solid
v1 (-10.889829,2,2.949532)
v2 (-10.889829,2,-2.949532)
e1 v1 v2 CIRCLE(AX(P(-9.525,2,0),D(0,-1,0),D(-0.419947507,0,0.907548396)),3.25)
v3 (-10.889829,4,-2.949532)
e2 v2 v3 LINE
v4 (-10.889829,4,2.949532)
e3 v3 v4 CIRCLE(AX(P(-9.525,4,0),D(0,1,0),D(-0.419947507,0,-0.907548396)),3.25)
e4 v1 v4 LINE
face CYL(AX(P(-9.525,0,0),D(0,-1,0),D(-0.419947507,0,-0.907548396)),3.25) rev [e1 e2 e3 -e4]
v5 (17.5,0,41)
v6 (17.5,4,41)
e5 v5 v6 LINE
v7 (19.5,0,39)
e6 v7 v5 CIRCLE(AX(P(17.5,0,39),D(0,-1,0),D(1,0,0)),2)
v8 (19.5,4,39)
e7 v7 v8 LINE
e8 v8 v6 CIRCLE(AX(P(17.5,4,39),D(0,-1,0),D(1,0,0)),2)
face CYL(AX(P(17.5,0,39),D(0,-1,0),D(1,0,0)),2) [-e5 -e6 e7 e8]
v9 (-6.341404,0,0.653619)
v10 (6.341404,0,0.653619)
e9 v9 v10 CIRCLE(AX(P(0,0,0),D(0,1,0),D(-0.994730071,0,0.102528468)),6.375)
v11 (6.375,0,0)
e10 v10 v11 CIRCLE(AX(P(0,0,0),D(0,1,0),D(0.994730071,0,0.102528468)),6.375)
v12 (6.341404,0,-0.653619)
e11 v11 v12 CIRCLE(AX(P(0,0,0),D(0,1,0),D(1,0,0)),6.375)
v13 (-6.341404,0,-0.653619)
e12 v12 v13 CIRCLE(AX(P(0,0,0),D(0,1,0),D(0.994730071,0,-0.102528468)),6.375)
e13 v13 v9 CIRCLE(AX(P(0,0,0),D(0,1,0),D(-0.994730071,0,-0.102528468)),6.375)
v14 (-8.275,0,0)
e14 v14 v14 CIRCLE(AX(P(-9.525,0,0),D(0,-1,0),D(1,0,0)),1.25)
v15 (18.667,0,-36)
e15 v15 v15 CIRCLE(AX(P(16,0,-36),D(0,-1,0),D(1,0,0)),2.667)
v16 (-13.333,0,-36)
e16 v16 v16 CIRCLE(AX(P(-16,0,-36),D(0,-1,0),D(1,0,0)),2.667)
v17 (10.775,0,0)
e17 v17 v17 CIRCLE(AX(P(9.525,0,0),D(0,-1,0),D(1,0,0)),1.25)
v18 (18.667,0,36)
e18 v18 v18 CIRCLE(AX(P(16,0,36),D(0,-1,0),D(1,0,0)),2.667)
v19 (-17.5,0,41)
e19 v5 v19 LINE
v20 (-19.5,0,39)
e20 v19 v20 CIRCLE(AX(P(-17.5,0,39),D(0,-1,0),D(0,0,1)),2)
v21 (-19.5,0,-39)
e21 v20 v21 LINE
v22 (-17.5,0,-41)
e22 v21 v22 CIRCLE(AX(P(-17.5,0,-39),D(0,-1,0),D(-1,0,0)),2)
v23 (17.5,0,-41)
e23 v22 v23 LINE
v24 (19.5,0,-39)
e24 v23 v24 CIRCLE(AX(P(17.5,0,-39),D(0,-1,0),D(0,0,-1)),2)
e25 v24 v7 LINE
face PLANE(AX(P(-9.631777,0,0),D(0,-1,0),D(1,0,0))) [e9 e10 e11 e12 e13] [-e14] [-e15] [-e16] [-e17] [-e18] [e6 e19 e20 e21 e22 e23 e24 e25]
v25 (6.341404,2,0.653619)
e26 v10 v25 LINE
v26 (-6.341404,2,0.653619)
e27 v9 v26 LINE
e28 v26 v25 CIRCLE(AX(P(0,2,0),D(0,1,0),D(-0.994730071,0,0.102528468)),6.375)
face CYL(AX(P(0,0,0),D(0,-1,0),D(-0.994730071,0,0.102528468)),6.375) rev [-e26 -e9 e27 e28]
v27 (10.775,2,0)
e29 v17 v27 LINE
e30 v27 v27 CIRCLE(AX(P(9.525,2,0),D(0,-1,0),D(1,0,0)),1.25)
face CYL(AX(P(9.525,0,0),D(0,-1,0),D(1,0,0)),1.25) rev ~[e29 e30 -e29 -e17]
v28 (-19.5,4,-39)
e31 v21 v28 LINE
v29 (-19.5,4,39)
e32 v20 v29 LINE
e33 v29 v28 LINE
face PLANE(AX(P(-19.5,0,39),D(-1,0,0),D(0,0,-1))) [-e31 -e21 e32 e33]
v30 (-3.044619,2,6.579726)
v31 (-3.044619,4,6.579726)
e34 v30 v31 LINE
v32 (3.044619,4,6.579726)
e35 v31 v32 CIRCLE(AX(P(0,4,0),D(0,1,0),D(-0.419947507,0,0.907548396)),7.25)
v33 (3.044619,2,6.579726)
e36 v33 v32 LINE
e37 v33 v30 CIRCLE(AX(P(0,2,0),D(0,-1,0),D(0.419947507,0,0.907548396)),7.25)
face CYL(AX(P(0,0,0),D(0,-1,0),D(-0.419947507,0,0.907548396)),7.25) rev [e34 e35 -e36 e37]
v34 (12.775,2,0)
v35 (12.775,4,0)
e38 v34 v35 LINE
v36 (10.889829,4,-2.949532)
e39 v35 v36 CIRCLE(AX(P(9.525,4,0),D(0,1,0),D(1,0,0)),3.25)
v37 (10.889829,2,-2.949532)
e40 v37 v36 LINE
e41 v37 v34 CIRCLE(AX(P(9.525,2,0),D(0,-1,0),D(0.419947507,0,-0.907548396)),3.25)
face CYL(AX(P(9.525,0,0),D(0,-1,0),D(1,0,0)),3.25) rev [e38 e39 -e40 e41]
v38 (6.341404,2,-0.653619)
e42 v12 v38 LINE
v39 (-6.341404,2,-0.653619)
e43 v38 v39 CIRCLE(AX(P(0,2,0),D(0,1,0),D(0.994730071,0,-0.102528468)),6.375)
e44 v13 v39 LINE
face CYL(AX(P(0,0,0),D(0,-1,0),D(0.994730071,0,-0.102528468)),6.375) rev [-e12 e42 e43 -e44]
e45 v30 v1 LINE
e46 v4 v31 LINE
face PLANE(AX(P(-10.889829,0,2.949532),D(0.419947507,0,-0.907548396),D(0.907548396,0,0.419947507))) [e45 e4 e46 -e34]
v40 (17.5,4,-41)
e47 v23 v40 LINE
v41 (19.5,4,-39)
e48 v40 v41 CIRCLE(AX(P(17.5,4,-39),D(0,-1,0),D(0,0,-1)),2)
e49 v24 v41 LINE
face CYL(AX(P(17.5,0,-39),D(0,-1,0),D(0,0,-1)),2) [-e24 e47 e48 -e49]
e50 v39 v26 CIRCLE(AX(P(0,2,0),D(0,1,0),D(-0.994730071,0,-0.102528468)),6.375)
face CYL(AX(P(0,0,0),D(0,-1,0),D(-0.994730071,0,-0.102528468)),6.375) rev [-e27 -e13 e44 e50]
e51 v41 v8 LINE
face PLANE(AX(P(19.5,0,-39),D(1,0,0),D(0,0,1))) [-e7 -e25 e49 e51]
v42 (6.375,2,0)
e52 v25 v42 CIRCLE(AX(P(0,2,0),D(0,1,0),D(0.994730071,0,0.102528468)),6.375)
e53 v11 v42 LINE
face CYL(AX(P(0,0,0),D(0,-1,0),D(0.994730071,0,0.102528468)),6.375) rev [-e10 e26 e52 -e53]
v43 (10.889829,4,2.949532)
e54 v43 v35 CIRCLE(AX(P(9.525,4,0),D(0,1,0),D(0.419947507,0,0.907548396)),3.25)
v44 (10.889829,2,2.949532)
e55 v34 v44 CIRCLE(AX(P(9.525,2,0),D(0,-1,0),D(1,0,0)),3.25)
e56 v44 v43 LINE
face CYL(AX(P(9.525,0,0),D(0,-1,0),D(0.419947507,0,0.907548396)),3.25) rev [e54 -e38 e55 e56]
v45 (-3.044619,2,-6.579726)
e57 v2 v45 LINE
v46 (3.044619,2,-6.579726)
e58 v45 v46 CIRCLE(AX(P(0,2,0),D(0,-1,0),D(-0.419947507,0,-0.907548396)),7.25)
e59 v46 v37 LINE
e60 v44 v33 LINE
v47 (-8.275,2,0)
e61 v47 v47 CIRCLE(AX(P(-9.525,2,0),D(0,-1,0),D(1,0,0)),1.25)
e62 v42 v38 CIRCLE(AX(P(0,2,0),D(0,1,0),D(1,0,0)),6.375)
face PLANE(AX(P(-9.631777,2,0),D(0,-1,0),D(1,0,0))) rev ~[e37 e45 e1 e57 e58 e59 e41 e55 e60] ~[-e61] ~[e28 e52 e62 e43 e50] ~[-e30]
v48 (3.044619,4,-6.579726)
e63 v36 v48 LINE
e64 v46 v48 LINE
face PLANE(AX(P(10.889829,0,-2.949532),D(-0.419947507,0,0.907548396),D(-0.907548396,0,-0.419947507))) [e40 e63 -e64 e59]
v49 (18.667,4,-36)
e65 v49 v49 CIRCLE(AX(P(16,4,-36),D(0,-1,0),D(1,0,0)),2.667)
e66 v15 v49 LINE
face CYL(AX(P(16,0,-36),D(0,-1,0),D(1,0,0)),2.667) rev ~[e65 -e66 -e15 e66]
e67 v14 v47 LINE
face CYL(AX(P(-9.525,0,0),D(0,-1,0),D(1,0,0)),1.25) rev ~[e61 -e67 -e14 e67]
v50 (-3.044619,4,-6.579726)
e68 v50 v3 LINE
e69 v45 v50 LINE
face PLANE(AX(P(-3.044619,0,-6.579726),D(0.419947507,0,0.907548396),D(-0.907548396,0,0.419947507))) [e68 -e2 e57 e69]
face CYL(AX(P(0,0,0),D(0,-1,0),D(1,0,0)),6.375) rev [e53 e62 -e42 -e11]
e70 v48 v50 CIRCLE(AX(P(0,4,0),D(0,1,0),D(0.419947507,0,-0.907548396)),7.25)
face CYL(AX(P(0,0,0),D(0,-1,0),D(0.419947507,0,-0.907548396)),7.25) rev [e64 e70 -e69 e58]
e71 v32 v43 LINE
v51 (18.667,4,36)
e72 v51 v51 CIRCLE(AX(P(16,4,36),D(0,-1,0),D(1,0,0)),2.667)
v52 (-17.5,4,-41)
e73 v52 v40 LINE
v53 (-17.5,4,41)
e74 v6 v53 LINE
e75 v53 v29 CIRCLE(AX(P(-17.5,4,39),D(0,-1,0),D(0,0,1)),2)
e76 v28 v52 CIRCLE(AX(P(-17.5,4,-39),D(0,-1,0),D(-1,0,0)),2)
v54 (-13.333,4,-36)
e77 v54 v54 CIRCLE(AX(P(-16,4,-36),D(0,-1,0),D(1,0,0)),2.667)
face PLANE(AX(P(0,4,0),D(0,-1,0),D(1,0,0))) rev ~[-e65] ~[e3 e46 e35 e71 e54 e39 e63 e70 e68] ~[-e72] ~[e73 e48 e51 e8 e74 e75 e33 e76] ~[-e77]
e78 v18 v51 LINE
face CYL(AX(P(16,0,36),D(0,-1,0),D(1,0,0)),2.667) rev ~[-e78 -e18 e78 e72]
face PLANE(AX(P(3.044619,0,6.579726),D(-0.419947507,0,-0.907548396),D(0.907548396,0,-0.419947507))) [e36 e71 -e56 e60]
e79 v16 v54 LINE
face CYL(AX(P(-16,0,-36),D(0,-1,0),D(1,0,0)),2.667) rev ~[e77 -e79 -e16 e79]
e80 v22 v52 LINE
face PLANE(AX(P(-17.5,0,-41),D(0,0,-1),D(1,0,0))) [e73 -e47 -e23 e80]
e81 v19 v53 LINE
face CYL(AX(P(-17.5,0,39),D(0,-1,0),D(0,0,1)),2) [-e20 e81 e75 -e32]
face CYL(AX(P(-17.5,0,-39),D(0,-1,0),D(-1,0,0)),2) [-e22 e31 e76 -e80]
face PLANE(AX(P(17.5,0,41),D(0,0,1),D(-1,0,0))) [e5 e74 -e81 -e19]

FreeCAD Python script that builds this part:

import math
import FreeCAD as App
import Part
import Sketcher
from FreeCAD import Vector
Q = App.Units.Quantity

doc = App.newDocument("Part")
body = doc.addObject("PartDesign::Body", "Body")

# Sketch on XZ plane
sketch1 = body.newObject("Sketcher::SketchObject", "Sketch")
sketch1.AttachmentSupport = (doc.getObject("XZ_Plane"), [""])
sketch1.MapMode = "FlatFace"
sketch1.addGeometry([
    Part.ArcOfCircle(Part.Circle(Vector(17.5, 39, 0), Vector(0, 0, 1), 2), math.radians(0), math.radians(90)),  # 0
    Part.LineSegment(Vector(17.5, 41, 0), Vector(-17.5, 41, 0)),  # 1
    Part.ArcOfCircle(Part.Circle(Vector(-17.5, 39, 0), Vector(0, 0, 1), 2), math.radians(90), math.radians(180)),  # 2
    Part.LineSegment(Vector(-19.5, 39, 0), Vector(-19.5, -39, 0)),  # 3
    Part.ArcOfCircle(Part.Circle(Vector(-17.5, -39, 0), Vector(0, 0, 1), 2), math.radians(180), math.radians(270)),  # 4
    Part.LineSegment(Vector(-17.5, -41, 0), Vector(17.5, -41, 0)),  # 5
    Part.ArcOfCircle(Part.Circle(Vector(17.5, -39, 0), Vector(0, 0, 1), 2), math.radians(-90), math.radians(0)),  # 6
    Part.LineSegment(Vector(19.5, -39, 0), Vector(19.5, 39, 0)),  # 7
    Part.Circle(Vector(-16, -36, 0), Vector(0, 0, 1), 2.7),  # 8
    Part.Circle(Vector(16, -36, 0), Vector(0, 0, 1), 2.7),  # 9
    Part.LineSegment(Vector(-10.9, 2.9, 0), Vector(-3, 6.6, 0)),  # 10
    Part.ArcOfCircle(Part.Circle(Vector(0, 0, 0), Vector(0, 0, 1), 7.2), math.radians(65), math.radians(115)),  # 11
    Part.LineSegment(Vector(3, 6.6, 0), Vector(10.9, 2.9, 0)),  # 12
    Part.ArcOfCircle(Part.Circle(Vector(9.5, 0, 0), Vector(0, 0, 1), 3.2), math.radians(0), math.radians(65)),  # 13
    Part.ArcOfCircle(Part.Circle(Vector(9.5, 0, 0), Vector(0, 0, 1), 3.2), math.radians(-65), math.radians(0)),  # 14
    Part.LineSegment(Vector(10.9, -2.9, 0), Vector(3, -6.6, 0)),  # 15
    Part.ArcOfCircle(Part.Circle(Vector(0, 0, 0), Vector(0, 0, 1), 7.2), math.radians(-115), math.radians(-65)),  # 16
    Part.LineSegment(Vector(-3, -6.6, 0), Vector(-10.9, -2.9, 0)),  # 17
    Part.ArcOfCircle(Part.Circle(Vector(-9.5, 0, 0), Vector(0, 0, 1), 3.2), math.radians(115), math.radians(245)),  # 18
    Part.Circle(Vector(16, 36, 0), Vector(0, 0, 1), 2.7),  # 19
], False)
sketch1.addConstraint([
    Sketcher.Constraint("Tangent", 0, 2, 1, 1),
    Sketcher.Constraint("Tangent", 1, 2, 2, 1),
    Sketcher.Constraint("Tangent", 2, 2, 3, 1),
    Sketcher.Constraint("Tangent", 3, 2, 4, 1),
    Sketcher.Constraint("Tangent", 4, 2, 5, 1),
    Sketcher.Constraint("Tangent", 5, 2, 6, 1),
    Sketcher.Constraint("Tangent", 6, 2, 7, 1),
    Sketcher.Constraint("Tangent", 7, 2, 0, 1),
    Sketcher.Constraint("Tangent", 10, 2, 11, 2),
    Sketcher.Constraint("Tangent", 11, 1, 12, 1),
    Sketcher.Constraint("Tangent", 12, 2, 13, 2),
    Sketcher.Constraint("Tangent", 13, 1, 14, 2),
    Sketcher.Constraint("Tangent", 14, 1, 15, 1),
    Sketcher.Constraint("Tangent", 15, 2, 16, 2),
    Sketcher.Constraint("Tangent", 16, 1, 17, 1),
    Sketcher.Constraint("Tangent", 17, 2, 18, 2),
    Sketcher.Constraint("Tangent", 18, 1, 10, 1),
    Sketcher.Constraint("Horizontal", 1),
    Sketcher.Constraint("Vertical", 3),
    Sketcher.Constraint("Horizontal", 5),
    Sketcher.Constraint("Vertical", 7),
    Sketcher.Constraint("Coincident", 11, 3, -1, 1),
    Sketcher.Constraint("Coincident", 16, 3, -1, 1),
    Sketcher.Constraint("Equal", 0, 2),
    Sketcher.Constraint("Equal", 2, 4),
    Sketcher.Constraint("Equal", 4, 6),
    Sketcher.Constraint("Equal", 8, 9),
    Sketcher.Constraint("Equal", 13, 14),
    Sketcher.Constraint("Equal", 11, 16),
    Sketcher.Constraint("Equal", 14, 18),
    Sketcher.Constraint("Equal", 9, 19),
    Sketcher.Constraint("Symmetric", 0, 3, 4, 3, -1, 1),
    Sketcher.Constraint("Symmetric", 13, 3, 18, 3, -1, 1),
    Sketcher.Constraint("Symmetric", 8, 3, 19, 3, -1, 1),
    Sketcher.Constraint("Symmetric", 8, 3, 9, 3, -2),
    Sketcher.Constraint("PointOnObject", 13, 3, -1),
    Sketcher.Constraint("PointOnObject", 13, 1, -1),
    Sketcher.Constraint("Radius", 0, Q("2 mm")),
    Sketcher.Constraint("DistanceX", 1, 2, 1, 1, Q("35 mm")),
    Sketcher.Constraint("DistanceY", 3, 2, 3, 1, Q("78 mm")),
    Sketcher.Constraint("Radius", 11, Q("7.25 mm")),
    Sketcher.Constraint("Radius", 13, Q("3.25 mm")),
    Sketcher.Constraint("Diameter", 8, Q("5.334 mm")),
    Sketcher.Constraint("DistanceX", 8, 3, -1, 1, Q("16 mm")),
    Sketcher.Constraint("DistanceY", 8, 3, -1, 1, Q("36 mm")),
    Sketcher.Constraint("DistanceX", 18, 3, 13, 3, Q("19.05 mm")),
])
pad1 = body.newObject("PartDesign::Pad", "Pad")
pad1.Profile = sketch1
pad1.Length = 4
pad1.Reversed = True

# Sketch on XZ plane
sketch2 = body.newObject("Sketcher::SketchObject", "Sketch001")
sketch2.AttachmentSupport = (doc.getObject("XZ_Plane"), [""])
sketch2.MapMode = "FlatFace"
sketch2.addGeometry([
    Part.LineSegment(Vector(-3, 6.6, 0), Vector(-10.9, 2.9, 0)),  # 0
    Part.ArcOfCircle(Part.Circle(Vector(-9.5, 0, 0), Vector(0, 0, 1), 3.2), math.radians(115), math.radians(245)),  # 1
    Part.LineSegment(Vector(-10.9, -2.9, 0), Vector(-3, -6.6, 0)),  # 2
    Part.ArcOfCircle(Part.Circle(Vector(0, 0, 0), Vector(0, 0, 1), 7.2), math.radians(-115), math.radians(-65)),  # 3
    Part.LineSegment(Vector(3, -6.6, 0), Vector(10.9, -2.9, 0)),  # 4
    Part.ArcOfCircle(Part.Circle(Vector(9.5, 0, 0), Vector(0, 0, 1), 3.2), math.radians(-65), math.radians(0)),  # 5
    Part.ArcOfCircle(Part.Circle(Vector(9.5, 0, 0), Vector(0, 0, 1), 3.2), math.radians(0), math.radians(65)),  # 6
    Part.LineSegment(Vector(10.9, 2.9, 0), Vector(3, 6.6, 0)),  # 7
    Part.ArcOfCircle(Part.Circle(Vector(0, 0, 0), Vector(0, 0, 1), 7.2), math.radians(65), math.radians(115)),  # 8
    Part.Circle(Vector(-9.5, 0, 0), Vector(0, 0, 1), 1.2),  # 9
    Part.ArcOfCircle(Part.Circle(Vector(0, 0, 0), Vector(0, 0, 1), 6.4), math.radians(-174), math.radians(-6)),  # 10
    Part.ArcOfCircle(Part.Circle(Vector(0, 0, 0), Vector(0, 0, 1), 6.4), math.radians(174.12), math.radians(185.88)),  # 11
    Part.ArcOfCircle(Part.Circle(Vector(0, 0, 0), Vector(0, 0, 1), 6.4), math.radians(6), math.radians(174)),  # 12
    Part.ArcOfCircle(Part.Circle(Vector(0, 0, 0), Vector(0, 0, 1), 6.4), math.radians(0), math.radians(5.88)),  # 13
    Part.ArcOfCircle(Part.Circle(Vector(0, 0, 0), Vector(0, 0, 1), 6.4), math.radians(-5.88), math.radians(0)),  # 14
    Part.Circle(Vector(9.5, 0, 0), Vector(0, 0, 1), 1.2),  # 15
], False)
sketch2.addConstraint([
    Sketcher.Constraint("Tangent", 0, 2, 1, 1),
    Sketcher.Constraint("Tangent", 1, 2, 2, 1),
    Sketcher.Constraint("Tangent", 2, 2, 3, 1),
    Sketcher.Constraint("Tangent", 3, 2, 4, 1),
    Sketcher.Constraint("Tangent", 4, 2, 5, 1),
    Sketcher.Constraint("Tangent", 5, 2, 6, 1),
    Sketcher.Constraint("Tangent", 6, 2, 7, 1),
    Sketcher.Constraint("Tangent", 7, 2, 8, 1),
    Sketcher.Constraint("Tangent", 8, 2, 0, 1),
    Sketcher.Constraint("Tangent", 10, 1, 11, 2),
    Sketcher.Constraint("Tangent", 11, 1, 12, 2),
    Sketcher.Constraint("Tangent", 12, 1, 13, 2),
    Sketcher.Constraint("Tangent", 13, 1, 14, 2),
    Sketcher.Constraint("Tangent", 14, 1, 10, 2),
    Sketcher.Constraint("Coincident", 3, 3, -1, 1),
    Sketcher.Constraint("Coincident", 8, 3, -1, 1),
    Sketcher.Constraint("Coincident", 10, 3, -1, 1),
    Sketcher.Constraint("Coincident", 12, 3, -1, 1),
    Sketcher.Constraint("Coincident", 9, 3, 1, 3),
    Sketcher.Constraint("Coincident", 15, 3, 5, 3),
    Sketcher.Constraint("Equal", 1, 5),
    Sketcher.Constraint("Equal", 5, 6),
    Sketcher.Constraint("Equal", 3, 8),
    Sketcher.Constraint("Equal", 9, 15),
    Sketcher.Constraint("Symmetric", 1, 3, 5, 3, -1, 1),
    Sketcher.Constraint("PointOnObject", 1, 3, -1),
    Sketcher.Constraint("PointOnObject", 5, 2, -1),
    Sketcher.Constraint("PointOnObject", 13, 1, -1),
    Sketcher.Constraint("Horizontal", 11, 1, 12, 1),
    Sketcher.Constraint("Horizontal", 10, 1, 14, 1),
    Sketcher.Constraint("Vertical", 10, 1, 11, 1),
    Sketcher.Constraint("Diameter", 9, Q("2.5 mm")),
    Sketcher.Constraint("Radius", 1, Q("3.25 mm")),
    Sketcher.Constraint("Radius", 3, Q("7.25 mm")),
    Sketcher.Constraint("Radius", 10, Q("6.375 mm")),
    Sketcher.Constraint("DistanceX", 1, 3, 5, 3, Q("19.05 mm")),
    Sketcher.Constraint("DistanceY", 10, 1, -1, 1, Q("0.653619 mm")),
])
pad2 = body.newObject("PartDesign::Pad", "Pad001")
pad2.Profile = sketch2
pad2.Length = 2
pad2.Reversed = True

doc.recompute()
